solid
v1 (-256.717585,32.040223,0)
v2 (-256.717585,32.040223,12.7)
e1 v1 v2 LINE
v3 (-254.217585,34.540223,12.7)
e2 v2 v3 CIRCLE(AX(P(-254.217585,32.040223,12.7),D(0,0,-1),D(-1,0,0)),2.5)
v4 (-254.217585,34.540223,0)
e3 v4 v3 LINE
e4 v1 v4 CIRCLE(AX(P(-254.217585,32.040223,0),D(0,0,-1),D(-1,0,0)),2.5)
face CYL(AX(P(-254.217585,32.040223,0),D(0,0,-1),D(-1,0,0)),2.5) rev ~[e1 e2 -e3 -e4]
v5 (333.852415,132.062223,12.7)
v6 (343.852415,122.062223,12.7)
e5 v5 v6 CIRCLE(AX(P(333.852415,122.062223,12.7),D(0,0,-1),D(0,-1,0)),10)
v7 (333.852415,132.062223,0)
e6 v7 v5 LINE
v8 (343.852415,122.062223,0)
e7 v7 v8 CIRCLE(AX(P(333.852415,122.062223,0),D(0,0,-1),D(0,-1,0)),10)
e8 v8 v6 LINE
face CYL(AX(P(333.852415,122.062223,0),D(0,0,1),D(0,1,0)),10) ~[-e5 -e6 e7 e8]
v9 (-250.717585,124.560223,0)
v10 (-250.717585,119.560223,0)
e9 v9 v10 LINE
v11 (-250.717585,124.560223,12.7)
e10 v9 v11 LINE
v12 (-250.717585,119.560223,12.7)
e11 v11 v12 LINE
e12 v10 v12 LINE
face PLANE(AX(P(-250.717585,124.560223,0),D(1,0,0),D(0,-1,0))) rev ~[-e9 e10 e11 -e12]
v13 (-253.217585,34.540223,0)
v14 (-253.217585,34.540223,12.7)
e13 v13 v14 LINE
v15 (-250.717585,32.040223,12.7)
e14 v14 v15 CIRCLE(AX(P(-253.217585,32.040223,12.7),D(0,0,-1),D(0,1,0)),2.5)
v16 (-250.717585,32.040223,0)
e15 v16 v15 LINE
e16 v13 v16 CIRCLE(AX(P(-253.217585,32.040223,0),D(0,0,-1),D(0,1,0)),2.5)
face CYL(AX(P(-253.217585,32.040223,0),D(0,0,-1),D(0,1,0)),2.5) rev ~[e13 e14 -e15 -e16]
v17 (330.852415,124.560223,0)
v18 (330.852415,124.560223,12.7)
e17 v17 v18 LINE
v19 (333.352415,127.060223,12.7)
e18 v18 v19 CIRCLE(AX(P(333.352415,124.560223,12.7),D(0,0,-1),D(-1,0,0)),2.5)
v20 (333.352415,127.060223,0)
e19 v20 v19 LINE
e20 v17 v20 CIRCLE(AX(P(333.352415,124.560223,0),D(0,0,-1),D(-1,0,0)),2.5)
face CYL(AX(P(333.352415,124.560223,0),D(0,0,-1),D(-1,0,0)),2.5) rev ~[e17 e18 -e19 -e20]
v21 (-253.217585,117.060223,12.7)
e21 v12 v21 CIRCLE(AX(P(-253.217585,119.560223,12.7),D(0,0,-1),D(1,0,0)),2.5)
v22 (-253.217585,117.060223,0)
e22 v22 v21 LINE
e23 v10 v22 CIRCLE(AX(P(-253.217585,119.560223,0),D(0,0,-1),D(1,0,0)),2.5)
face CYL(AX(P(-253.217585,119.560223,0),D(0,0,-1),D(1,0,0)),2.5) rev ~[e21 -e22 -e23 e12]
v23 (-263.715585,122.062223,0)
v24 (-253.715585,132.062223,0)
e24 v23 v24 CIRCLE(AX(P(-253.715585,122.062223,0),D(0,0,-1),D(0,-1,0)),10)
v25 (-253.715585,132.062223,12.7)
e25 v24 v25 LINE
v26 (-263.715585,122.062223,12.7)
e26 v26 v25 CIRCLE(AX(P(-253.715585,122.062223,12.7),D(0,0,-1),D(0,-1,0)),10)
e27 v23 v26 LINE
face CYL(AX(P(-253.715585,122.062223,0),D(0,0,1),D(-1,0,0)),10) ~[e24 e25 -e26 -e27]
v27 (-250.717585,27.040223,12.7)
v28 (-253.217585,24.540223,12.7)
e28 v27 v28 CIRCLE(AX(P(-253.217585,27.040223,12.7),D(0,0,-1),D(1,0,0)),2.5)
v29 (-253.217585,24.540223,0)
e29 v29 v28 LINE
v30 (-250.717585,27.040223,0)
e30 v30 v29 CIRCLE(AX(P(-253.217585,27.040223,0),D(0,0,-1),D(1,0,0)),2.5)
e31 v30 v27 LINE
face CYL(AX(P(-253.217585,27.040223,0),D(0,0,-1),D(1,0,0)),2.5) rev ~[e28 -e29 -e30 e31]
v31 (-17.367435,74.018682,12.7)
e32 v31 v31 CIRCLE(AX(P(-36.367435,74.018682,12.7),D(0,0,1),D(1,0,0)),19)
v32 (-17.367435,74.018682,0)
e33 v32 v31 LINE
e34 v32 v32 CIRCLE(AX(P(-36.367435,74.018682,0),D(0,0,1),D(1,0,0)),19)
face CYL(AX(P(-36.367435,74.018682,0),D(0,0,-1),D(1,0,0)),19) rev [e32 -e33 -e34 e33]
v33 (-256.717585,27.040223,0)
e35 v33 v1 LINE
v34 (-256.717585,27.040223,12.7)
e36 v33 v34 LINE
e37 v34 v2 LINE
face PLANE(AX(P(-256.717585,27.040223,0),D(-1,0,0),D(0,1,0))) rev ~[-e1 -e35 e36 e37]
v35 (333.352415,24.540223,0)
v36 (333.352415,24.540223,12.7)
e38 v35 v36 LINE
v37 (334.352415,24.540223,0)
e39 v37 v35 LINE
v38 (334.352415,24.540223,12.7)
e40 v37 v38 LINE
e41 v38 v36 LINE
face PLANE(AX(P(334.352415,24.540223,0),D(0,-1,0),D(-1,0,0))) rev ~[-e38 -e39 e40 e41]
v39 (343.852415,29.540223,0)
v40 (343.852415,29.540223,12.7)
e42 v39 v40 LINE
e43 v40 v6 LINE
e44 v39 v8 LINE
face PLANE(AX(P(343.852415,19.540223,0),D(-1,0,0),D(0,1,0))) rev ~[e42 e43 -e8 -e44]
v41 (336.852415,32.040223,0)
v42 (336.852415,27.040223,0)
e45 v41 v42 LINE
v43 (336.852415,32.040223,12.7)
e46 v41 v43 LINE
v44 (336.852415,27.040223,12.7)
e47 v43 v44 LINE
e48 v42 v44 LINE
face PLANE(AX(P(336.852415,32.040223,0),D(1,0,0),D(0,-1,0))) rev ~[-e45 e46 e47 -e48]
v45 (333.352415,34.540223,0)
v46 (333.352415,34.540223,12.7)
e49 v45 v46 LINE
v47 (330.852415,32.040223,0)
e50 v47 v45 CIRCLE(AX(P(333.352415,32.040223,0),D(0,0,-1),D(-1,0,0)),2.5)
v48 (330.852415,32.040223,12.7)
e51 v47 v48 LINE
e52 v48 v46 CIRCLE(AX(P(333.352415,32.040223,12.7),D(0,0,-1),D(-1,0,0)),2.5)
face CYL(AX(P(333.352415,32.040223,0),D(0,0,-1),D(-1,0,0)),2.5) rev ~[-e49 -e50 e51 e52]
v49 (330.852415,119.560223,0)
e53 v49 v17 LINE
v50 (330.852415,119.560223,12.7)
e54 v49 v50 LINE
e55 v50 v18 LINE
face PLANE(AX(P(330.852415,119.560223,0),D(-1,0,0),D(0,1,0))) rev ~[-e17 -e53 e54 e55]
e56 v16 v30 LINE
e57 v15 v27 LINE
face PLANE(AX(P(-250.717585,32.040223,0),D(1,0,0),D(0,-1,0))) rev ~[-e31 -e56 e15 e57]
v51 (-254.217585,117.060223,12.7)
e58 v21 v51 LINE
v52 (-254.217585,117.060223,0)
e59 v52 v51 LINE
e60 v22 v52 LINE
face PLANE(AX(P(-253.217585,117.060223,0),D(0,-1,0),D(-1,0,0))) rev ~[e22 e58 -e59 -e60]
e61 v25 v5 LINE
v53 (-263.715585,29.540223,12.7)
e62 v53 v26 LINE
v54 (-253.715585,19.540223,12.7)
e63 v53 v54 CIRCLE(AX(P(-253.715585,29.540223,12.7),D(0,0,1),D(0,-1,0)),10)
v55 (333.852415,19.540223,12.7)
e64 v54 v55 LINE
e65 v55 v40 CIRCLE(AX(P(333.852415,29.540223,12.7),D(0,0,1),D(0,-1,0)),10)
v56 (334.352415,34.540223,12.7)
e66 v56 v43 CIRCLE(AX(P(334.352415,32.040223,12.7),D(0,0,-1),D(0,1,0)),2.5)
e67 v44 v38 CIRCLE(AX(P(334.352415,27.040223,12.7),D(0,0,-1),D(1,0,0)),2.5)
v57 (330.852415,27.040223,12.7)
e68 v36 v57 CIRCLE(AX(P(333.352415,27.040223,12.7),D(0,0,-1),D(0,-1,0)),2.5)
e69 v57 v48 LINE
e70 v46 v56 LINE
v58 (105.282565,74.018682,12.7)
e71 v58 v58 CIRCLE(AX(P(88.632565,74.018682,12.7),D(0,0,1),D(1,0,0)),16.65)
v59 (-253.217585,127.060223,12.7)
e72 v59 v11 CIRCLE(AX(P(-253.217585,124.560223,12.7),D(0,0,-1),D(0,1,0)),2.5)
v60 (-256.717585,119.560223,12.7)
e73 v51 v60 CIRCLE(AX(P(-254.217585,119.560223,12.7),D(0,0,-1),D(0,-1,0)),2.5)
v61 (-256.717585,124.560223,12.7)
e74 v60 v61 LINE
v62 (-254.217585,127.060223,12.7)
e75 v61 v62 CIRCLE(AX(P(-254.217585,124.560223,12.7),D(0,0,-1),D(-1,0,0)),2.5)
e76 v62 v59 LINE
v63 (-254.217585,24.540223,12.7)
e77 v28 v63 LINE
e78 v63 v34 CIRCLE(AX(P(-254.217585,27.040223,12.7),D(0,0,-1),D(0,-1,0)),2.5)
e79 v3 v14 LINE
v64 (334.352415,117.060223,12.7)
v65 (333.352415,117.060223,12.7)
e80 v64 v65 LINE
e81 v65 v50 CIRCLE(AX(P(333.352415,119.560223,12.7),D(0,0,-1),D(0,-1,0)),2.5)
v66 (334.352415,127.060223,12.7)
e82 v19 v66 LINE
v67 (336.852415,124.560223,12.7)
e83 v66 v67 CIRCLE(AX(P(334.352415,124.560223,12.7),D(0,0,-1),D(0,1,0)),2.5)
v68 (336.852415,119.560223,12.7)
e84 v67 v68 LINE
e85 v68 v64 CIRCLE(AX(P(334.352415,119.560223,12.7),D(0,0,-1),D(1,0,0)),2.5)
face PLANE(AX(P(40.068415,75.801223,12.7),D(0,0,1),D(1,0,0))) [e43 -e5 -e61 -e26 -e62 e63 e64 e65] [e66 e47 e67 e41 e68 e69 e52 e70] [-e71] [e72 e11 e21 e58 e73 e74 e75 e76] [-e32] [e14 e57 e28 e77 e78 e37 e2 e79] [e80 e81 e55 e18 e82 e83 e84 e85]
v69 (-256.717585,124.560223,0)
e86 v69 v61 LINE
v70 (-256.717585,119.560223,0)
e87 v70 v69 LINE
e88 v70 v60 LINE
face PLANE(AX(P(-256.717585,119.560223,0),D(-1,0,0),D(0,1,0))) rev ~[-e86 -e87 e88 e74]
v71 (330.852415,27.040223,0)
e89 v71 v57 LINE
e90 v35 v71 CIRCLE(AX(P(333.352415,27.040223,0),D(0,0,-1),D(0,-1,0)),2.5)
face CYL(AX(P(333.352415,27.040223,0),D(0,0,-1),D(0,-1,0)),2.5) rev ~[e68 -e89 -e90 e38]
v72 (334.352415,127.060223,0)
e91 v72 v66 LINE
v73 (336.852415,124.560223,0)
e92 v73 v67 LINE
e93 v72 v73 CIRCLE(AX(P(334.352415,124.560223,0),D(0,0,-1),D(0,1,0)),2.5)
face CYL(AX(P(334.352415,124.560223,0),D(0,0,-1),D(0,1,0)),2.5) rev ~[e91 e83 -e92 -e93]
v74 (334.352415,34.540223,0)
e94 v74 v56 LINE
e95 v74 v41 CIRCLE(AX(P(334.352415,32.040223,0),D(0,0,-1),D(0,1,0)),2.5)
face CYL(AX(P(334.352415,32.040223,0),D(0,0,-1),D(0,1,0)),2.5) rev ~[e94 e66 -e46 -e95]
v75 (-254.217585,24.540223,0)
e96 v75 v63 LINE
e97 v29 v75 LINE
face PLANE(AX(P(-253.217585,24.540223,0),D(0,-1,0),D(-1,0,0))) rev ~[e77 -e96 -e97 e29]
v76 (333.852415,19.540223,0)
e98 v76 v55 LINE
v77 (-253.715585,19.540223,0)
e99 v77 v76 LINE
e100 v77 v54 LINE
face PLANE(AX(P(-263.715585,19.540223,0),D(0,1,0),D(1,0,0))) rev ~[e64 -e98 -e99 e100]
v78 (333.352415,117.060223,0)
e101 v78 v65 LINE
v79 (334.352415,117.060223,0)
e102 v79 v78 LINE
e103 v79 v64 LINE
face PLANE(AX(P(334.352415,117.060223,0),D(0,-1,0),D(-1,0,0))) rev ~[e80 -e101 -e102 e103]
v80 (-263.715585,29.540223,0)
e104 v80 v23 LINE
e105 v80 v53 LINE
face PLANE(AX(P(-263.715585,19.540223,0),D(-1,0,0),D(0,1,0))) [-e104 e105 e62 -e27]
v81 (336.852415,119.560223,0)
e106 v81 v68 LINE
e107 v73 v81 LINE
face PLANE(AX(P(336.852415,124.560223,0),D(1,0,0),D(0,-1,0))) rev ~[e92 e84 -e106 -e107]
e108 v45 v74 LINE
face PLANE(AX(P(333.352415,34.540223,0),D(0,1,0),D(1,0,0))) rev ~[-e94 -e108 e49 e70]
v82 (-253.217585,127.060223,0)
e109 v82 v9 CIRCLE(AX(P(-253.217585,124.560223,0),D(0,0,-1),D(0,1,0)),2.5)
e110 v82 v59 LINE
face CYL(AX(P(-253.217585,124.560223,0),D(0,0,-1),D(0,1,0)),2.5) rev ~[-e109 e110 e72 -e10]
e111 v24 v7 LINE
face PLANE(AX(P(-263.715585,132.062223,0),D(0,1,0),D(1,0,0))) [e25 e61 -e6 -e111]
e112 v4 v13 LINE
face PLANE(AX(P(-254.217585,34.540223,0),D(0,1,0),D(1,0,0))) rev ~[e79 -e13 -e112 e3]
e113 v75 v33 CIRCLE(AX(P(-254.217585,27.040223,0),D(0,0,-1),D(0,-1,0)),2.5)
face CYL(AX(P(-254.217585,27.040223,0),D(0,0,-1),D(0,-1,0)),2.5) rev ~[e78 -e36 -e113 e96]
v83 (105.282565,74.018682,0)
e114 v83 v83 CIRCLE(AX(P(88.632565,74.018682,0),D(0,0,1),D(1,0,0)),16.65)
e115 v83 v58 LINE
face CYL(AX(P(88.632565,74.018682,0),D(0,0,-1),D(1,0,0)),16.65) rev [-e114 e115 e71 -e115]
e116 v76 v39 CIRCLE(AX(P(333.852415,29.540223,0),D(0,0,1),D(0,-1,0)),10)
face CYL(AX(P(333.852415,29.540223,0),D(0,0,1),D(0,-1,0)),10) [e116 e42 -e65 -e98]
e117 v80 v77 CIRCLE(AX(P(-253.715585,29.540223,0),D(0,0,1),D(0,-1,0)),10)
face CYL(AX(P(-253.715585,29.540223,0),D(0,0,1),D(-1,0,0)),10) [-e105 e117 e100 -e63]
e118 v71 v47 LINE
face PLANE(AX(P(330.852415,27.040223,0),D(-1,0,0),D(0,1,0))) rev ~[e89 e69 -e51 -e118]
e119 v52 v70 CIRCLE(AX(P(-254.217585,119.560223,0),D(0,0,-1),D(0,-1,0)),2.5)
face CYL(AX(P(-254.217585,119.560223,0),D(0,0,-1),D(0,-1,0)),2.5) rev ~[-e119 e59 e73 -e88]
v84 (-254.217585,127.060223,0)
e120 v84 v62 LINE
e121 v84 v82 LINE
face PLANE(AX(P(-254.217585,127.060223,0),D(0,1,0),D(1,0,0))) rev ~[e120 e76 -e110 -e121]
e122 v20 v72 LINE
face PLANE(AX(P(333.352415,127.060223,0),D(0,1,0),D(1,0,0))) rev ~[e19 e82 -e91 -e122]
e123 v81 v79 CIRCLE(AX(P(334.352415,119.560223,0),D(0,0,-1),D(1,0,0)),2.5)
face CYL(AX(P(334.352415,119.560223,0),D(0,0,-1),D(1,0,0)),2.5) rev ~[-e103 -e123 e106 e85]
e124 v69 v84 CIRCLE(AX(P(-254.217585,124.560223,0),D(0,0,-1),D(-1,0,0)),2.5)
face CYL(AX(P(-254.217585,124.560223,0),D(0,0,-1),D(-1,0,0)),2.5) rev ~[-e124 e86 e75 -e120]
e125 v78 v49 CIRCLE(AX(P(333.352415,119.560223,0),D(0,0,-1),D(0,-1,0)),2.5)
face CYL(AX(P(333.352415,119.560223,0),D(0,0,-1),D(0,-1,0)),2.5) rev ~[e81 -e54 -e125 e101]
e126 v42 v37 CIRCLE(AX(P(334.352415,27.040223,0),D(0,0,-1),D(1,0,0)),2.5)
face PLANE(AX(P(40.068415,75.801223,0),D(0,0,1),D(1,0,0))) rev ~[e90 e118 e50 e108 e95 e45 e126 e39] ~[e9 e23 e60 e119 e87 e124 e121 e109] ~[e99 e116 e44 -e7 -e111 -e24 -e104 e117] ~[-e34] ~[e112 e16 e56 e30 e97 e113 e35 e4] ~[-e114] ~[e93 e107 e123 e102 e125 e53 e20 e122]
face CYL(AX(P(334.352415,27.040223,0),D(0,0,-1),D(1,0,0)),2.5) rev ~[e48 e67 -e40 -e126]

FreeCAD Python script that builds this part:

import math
import FreeCAD as App
import Part
import Sketcher
from FreeCAD import Vector
Q = App.Units.Quantity


def edges_at(feature, points):
    """Names of the edges that pass closest to the given points."""
    edges = feature.Shape.Edges
    near = lambda p: min(range(len(edges)), key=lambda i: edges[i].distToShape(Part.Vertex(*p))[0])
    return sorted({f"Edge{near(p) + 1}" for p in points})


def add_polygon(sketch, points):
    """Adds a closed chain of lines whose ends are joined by coincident constraints."""
    first, n = sketch.GeometryCount, len(points)
    for a, b in zip(points, points[1:] + points[:1]):
        sketch.addGeometry(Part.LineSegment(App.Vector(*a, 0), App.Vector(*b, 0)), False)
    for i in range(n):
        sketch.addConstraint(Sketcher.Constraint("Coincident", first + i, 2, first + (i + 1) % n, 1))

doc = App.newDocument("Part")
body = doc.addObject("PartDesign::Body", "Body")

# Sketch on XY plane
sketch1 = doc.addObject("Sketcher::SketchObject", "Sketch")
body.addObject(sketch1)
sketch1.AttachmentSupport = (doc.XY_Plane, [""])
sketch1.MapMode = "FlatFace"
add_polygon(sketch1, [(-263.715585, 132.062223), (-263.715585, 19.540223), (343.852415, 19.540223), (343.852415, 132.062223)])  # lines 0-3
sketch1.addGeometry(Part.ArcOfCircle(Part.Circle(Vector(-253.217585, 27.040223, 0), Vector(0, 0, 1), 2.5), math.radians(-90), math.radians(0)), False)  # 4
sketch1.addGeometry(Part.LineSegment(Vector(-253.217585, 24.540223, 0), Vector(-254.217585, 24.540223, 0)), False)  # 5
sketch1.addGeometry(Part.ArcOfCircle(Part.Circle(Vector(-254.217585, 27.040223, 0), Vector(0, 0, 1), 2.5), math.radians(180), math.radians(270)), False)  # 6
sketch1.addGeometry(Part.LineSegment(Vector(-256.717585, 27.040223, 0), Vector(-256.717585, 32.040223, 0)), False)  # 7
sketch1.addGeometry(Part.ArcOfCircle(Part.Circle(Vector(-254.217585, 32.040223, 0), Vector(0, 0, 1), 2.5), math.radians(90), math.radians(180)), False)  # 8
sketch1.addGeometry(Part.LineSegment(Vector(-254.217585, 34.540223, 0), Vector(-253.217585, 34.540223, 0)), False)  # 9
sketch1.addGeometry(Part.ArcOfCircle(Part.Circle(Vector(-253.217585, 32.040223, 0), Vector(0, 0, 1), 2.5), math.radians(0), math.radians(90)), False)  # 10
sketch1.addGeometry(Part.LineSegment(Vector(-250.717585, 32.040223, 0), Vector(-250.717585, 27.040223, 0)), False)  # 11
sketch1.addGeometry(Part.Circle(Vector(-36.367435, 74.018682, 0), Vector(0, 0, 1), 19), False)  # 12
sketch1.addGeometry(Part.ArcOfCircle(Part.Circle(Vector(334.352415, 27.040223, 0), Vector(0, 0, 1), 2.5), math.radians(-90), math.radians(0)), False)  # 13
sketch1.addGeometry(Part.LineSegment(Vector(334.352415, 24.540223, 0), Vector(333.352415, 24.540223, 0)), False)  # 14
sketch1.addGeometry(Part.ArcOfCircle(Part.Circle(Vector(333.352415, 27.040223, 0), Vector(0, 0, 1), 2.5), math.radians(180), math.radians(270)), False)  # 15
sketch1.addGeometry(Part.LineSegment(Vector(330.852415, 27.040223, 0), Vector(330.852415, 32.040223, 0)), False)  # 16
sketch1.addGeometry(Part.ArcOfCircle(Part.Circle(Vector(333.352415, 32.040223, 0), Vector(0, 0, 1), 2.5), math.radians(90), math.radians(180)), False)  # 17
sketch1.addGeometry(Part.LineSegment(Vector(333.352415, 34.540223, 0), Vector(334.352415, 34.540223, 0)), False)  # 18
sketch1.addGeometry(Part.ArcOfCircle(Part.Circle(Vector(334.352415, 32.040223, 0), Vector(0, 0, 1), 2.5), math.radians(0), math.radians(90)), False)  # 19
sketch1.addGeometry(Part.LineSegment(Vector(336.852415, 32.040223, 0), Vector(336.852415, 27.040223, 0)), False)  # 20
sketch1.addGeometry(Part.Circle(Vector(88.632565, 74.018682, 0), Vector(0, 0, 1), 16.65), False)  # 21
sketch1.addGeometry(Part.ArcOfCircle(Part.Circle(Vector(-253.217585, 119.560223, 0), Vector(0, 0, 1), 2.5), math.radians(-90), math.radians(0)), False)  # 22
sketch1.addGeometry(Part.LineSegment(Vector(-253.217585, 117.060223, 0), Vector(-254.217585, 117.060223, 0)), False)  # 23
sketch1.addGeometry(Part.ArcOfCircle(Part.Circle(Vector(-254.217585, 119.560223, 0), Vector(0, 0, 1), 2.5), math.radians(180), math.radians(270)), False)  # 24
sketch1.addGeometry(Part.LineSegment(Vector(-256.717585, 119.560223, 0), Vector(-256.717585, 124.560223, 0)), False)  # 25
sketch1.addGeometry(Part.ArcOfCircle(Part.Circle(Vector(-254.217585, 124.560223, 0), Vector(0, 0, 1), 2.5), math.radians(90), math.radians(180)), False)  # 26
sketch1.addGeometry(Part.LineSegment(Vector(-254.217585, 127.060223, 0), Vector(-253.217585, 127.060223, 0)), False)  # 27
sketch1.addGeometry(Part.ArcOfCircle(Part.Circle(Vector(-253.217585, 124.560223, 0), Vector(0, 0, 1), 2.5), math.radians(0), math.radians(90)), False)  # 28
sketch1.addGeometry(Part.LineSegment(Vector(-250.717585, 124.560223, 0), Vector(-250.717585, 119.560223, 0)), False)  # 29
sketch1.addGeometry(Part.ArcOfCircle(Part.Circle(Vector(334.352415, 119.560223, 0), Vector(0, 0, 1), 2.5), math.radians(-90), math.radians(0)), False)  # 30
sketch1.addGeometry(Part.LineSegment(Vector(334.352415, 117.060223, 0), Vector(333.352415, 117.060223, 0)), False)  # 31
sketch1.addGeometry(Part.ArcOfCircle(Part.Circle(Vector(333.352415, 119.560223, 0), Vector(0, 0, 1), 2.5), math.radians(180), math.radians(270)), False)  # 32
sketch1.addGeometry(Part.LineSegment(Vector(330.852415, 119.560223, 0), Vector(330.852415, 124.560223, 0)), False)  # 33
sketch1.addGeometry(Part.ArcOfCircle(Part.Circle(Vector(333.352415, 124.560223, 0), Vector(0, 0, 1), 2.5), math.radians(90), math.radians(180)), False)  # 34
sketch1.addGeometry(Part.LineSegment(Vector(333.352415, 127.060223, 0), Vector(334.352415, 127.060223, 0)), False)  # 35
sketch1.addGeometry(Part.ArcOfCircle(Part.Circle(Vector(334.352415, 124.560223, 0), Vector(0, 0, 1), 2.5), math.radians(0), math.radians(90)), False)  # 36
sketch1.addGeometry(Part.LineSegment(Vector(336.852415, 124.560223, 0), Vector(336.852415, 119.560223, 0)), False)  # 37
sketch1.addConstraint(Sketcher.Constraint("Tangent", 4, 1, 5, 1))
sketch1.addConstraint(Sketcher.Constraint("Tangent", 5, 2, 6, 2))
sketch1.addConstraint(Sketcher.Constraint("Tangent", 6, 1, 7, 1))
sketch1.addConstraint(Sketcher.Constraint("Tangent", 7, 2, 8, 2))
sketch1.addConstraint(Sketcher.Constraint("Tangent", 8, 1, 9, 1))
sketch1.addConstraint(Sketcher.Constraint("Tangent", 9, 2, 10, 2))
sketch1.addConstraint(Sketcher.Constraint("Tangent", 10, 1, 11, 1))
sketch1.addConstraint(Sketcher.Constraint("Tangent", 11, 2, 4, 2))
sketch1.addConstraint(Sketcher.Constraint("Tangent", 13, 1, 14, 1))
sketch1.addConstraint(Sketcher.Constraint("Tangent", 14, 2, 15, 2))
sketch1.addConstraint(Sketcher.Constraint("Tangent", 15, 1, 16, 1))
sketch1.addConstraint(Sketcher.Constraint("Tangent", 16, 2, 17, 2))
sketch1.addConstraint(Sketcher.Constraint("Tangent", 17, 1, 18, 1))
sketch1.addConstraint(Sketcher.Constraint("Tangent", 18, 2, 19, 2))
sketch1.addConstraint(Sketcher.Constraint("Tangent", 19, 1, 20, 1))
sketch1.addConstraint(Sketcher.Constraint("Tangent", 20, 2, 13, 2))
sketch1.addConstraint(Sketcher.Constraint("Tangent", 22, 1, 23, 1))
sketch1.addConstraint(Sketcher.Constraint("Tangent", 23, 2, 24, 2))
sketch1.addConstraint(Sketcher.Constraint("Tangent", 24, 1, 25, 1))
sketch1.addConstraint(Sketcher.Constraint("Tangent", 25, 2, 26, 2))
sketch1.addConstraint(Sketcher.Constraint("Tangent", 26, 1, 27, 1))
sketch1.addConstraint(Sketcher.Constraint("Tangent", 27, 2, 28, 2))
sketch1.addConstraint(Sketcher.Constraint("Tangent", 28, 1, 29, 1))
sketch1.addConstraint(Sketcher.Constraint("Tangent", 29, 2, 22, 2))
sketch1.addConstraint(Sketcher.Constraint("Tangent", 30, 1, 31, 1))
sketch1.addConstraint(Sketcher.Constraint("Tangent", 31, 2, 32, 2))
sketch1.addConstraint(Sketcher.Constraint("Tangent", 32, 1, 33, 1))
sketch1.addConstraint(Sketcher.Constraint("Tangent", 33, 2, 34, 2))
sketch1.addConstraint(Sketcher.Constraint("Tangent", 34, 1, 35, 1))
sketch1.addConstraint(Sketcher.Constraint("Tangent", 35, 2, 36, 2))
sketch1.addConstraint(Sketcher.Constraint("Tangent", 36, 1, 37, 1))
sketch1.addConstraint(Sketcher.Constraint("Tangent", 37, 2, 30, 2))
sketch1.addConstraint(Sketcher.Constraint("Vertical", 0))
sketch1.addConstraint(Sketcher.Constraint("Horizontal", 1))
sketch1.addConstraint(Sketcher.Constraint("Vertical", 2))
sketch1.addConstraint(Sketcher.Constraint("Horizontal", 3))
sketch1.addConstraint(Sketcher.Constraint("Horizontal", 5))
sketch1.addConstraint(Sketcher.Constraint("Vertical", 7))
sketch1.addConstraint(Sketcher.Constraint("Horizontal", 9))
sketch1.addConstraint(Sketcher.Constraint("Vertical", 11))
sketch1.addConstraint(Sketcher.Constraint("Horizontal", 14))
sketch1.addConstraint(Sketcher.Constraint("Vertical", 16))
sketch1.addConstraint(Sketcher.Constraint("Horizontal", 18))
sketch1.addConstraint(Sketcher.Constraint("Vertical", 20))
sketch1.addConstraint(Sketcher.Constraint("Horizontal", 23))
sketch1.addConstraint(Sketcher.Constraint("Vertical", 25))
sketch1.addConstraint(Sketcher.Constraint("Horizontal", 27))
sketch1.addConstraint(Sketcher.Constraint("Vertical", 29))
sketch1.addConstraint(Sketcher.Constraint("Horizontal", 31))
sketch1.addConstraint(Sketcher.Constraint("Vertical", 33))
sketch1.addConstraint(Sketcher.Constraint("Horizontal", 35))
sketch1.addConstraint(Sketcher.Constraint("Vertical", 37))
sketch1.addConstraint(Sketcher.Constraint("Equal", 4, 6))
sketch1.addConstraint(Sketcher.Constraint("Equal", 6, 8))
sketch1.addConstraint(Sketcher.Constraint("Equal", 8, 10))
sketch1.addConstraint(Sketcher.Constraint("Equal", 10, 13))
sketch1.addConstraint(Sketcher.Constraint("Equal", 13, 15))
sketch1.addConstraint(Sketcher.Constraint("Equal", 15, 17))
sketch1.addConstraint(Sketcher.Constraint("Equal", 17, 19))
sketch1.addConstraint(Sketcher.Constraint("Equal", 19, 22))
sketch1.addConstraint(Sketcher.Constraint("Equal", 22, 24))
sketch1.addConstraint(Sketcher.Constraint("Equal", 24, 26))
sketch1.addConstraint(Sketcher.Constraint("Equal", 26, 28))
sketch1.addConstraint(Sketcher.Constraint("Equal", 28, 30))
sketch1.addConstraint(Sketcher.Constraint("Equal", 30, 32))
sketch1.addConstraint(Sketcher.Constraint("Equal", 32, 34))
sketch1.addConstraint(Sketcher.Constraint("Equal", 34, 36))
sketch1.addConstraint(Sketcher.Constraint("Horizontal", 6, 3, 13, 3))
sketch1.addConstraint(Sketcher.Constraint("Horizontal", 10, 3, 17, 3))
sketch1.addConstraint(Sketcher.Constraint("Horizontal", 12, 3, 21, 3))
sketch1.addConstraint(Sketcher.Constraint("Horizontal", 24, 3, 30, 3))
sketch1.addConstraint(Sketcher.Constraint("Horizontal", 28, 3, 34, 3))
sketch1.addConstraint(Sketcher.Constraint("Vertical", 10, 3, 22, 3))
sketch1.addConstraint(Sketcher.Constraint("Vertical", 8, 3, 24, 3))
sketch1.addConstraint(Sketcher.Constraint("Vertical", 19, 3, 30, 3))
sketch1.addConstraint(Sketcher.Constraint("Vertical", 17, 3, 32, 3))
sketch1.addConstraint(Sketcher.Constraint("Equal", 9, 14))
sketch1.addConstraint(Sketcher.Constraint("Equal", 20, 25))
sketch1.addConstraint(Sketcher.Constraint("Diameter", 12, Q("38 mm")))
sketch1.addConstraint(Sketcher.Constraint("Diameter", 21, Q("33.3 mm")))
sketch1.addConstraint(Sketcher.Constraint("Radius", 4, Q("2.5 mm")))
sketch1.addConstraint(Sketcher.Constraint("DistanceX", 5, 2, 5, 1, Q("1 mm")))
sketch1.addConstraint(Sketcher.Constraint("DistanceY", 7, 1, 7, 2, Q("5 mm")))
sketch1.addConstraint(Sketcher.Constraint("DistanceX", 12, 3, 21, 3, Q("125 mm")))
sketch1.addConstraint(Sketcher.Constraint("DistanceY", 0, 2, 4, 1, Q("5 mm")))
sketch1.addConstraint(Sketcher.Constraint("DistanceX", 13, 3, 1, 2, Q("9.5 mm")))
sketch1.addConstraint(Sketcher.Constraint("DistanceX", 1, 1, 1, 2, Q("607.568 mm")))
sketch1.addConstraint(Sketcher.Constraint("DistanceY", 0, 2, 0, 1, Q("112.522 mm")))
sketch1.addConstraint(Sketcher.Constraint("DistanceX", 4, 3, 13, 3, Q("587.57 mm")))
sketch1.addConstraint(Sketcher.Constraint("DistanceY", 10, 3, 22, 3, Q("87.52 mm")))
sketch1.addConstraint(Sketcher.Constraint("DistanceX", 10, 3, 12, 3, Q("216.85015 mm")))
sketch1.addConstraint(Sketcher.Constraint("DistanceY", 10, 3, 12, 3, Q("41.978459 mm")))
sketch1.addConstraint(Sketcher.Constraint("DistanceX", 4, 3, -1, 1, Q("253.217585 mm")))
sketch1.addConstraint(Sketcher.Constraint("DistanceY", -1, 1, 4, 3, Q("27.040223 mm")))
pad1 = doc.addObject("PartDesign::Pad", "Pad")
body.addObject(pad1)
pad1.Profile = sketch1
pad1.Length = 12.7
doc.recompute()

fillet = doc.addObject("PartDesign::Fillet", "Fillet")
body.addObject(fillet)
fillet.Base = (pad1, edges_at(pad1, [
    (-263.716, 132.062, 6.35),
    (-263.716, 19.54, 6.35),
    (343.852, 19.54, 6.35),
    (343.852, 132.062, 6.35),
]))
fillet.Radius = 10

doc.recompute()
